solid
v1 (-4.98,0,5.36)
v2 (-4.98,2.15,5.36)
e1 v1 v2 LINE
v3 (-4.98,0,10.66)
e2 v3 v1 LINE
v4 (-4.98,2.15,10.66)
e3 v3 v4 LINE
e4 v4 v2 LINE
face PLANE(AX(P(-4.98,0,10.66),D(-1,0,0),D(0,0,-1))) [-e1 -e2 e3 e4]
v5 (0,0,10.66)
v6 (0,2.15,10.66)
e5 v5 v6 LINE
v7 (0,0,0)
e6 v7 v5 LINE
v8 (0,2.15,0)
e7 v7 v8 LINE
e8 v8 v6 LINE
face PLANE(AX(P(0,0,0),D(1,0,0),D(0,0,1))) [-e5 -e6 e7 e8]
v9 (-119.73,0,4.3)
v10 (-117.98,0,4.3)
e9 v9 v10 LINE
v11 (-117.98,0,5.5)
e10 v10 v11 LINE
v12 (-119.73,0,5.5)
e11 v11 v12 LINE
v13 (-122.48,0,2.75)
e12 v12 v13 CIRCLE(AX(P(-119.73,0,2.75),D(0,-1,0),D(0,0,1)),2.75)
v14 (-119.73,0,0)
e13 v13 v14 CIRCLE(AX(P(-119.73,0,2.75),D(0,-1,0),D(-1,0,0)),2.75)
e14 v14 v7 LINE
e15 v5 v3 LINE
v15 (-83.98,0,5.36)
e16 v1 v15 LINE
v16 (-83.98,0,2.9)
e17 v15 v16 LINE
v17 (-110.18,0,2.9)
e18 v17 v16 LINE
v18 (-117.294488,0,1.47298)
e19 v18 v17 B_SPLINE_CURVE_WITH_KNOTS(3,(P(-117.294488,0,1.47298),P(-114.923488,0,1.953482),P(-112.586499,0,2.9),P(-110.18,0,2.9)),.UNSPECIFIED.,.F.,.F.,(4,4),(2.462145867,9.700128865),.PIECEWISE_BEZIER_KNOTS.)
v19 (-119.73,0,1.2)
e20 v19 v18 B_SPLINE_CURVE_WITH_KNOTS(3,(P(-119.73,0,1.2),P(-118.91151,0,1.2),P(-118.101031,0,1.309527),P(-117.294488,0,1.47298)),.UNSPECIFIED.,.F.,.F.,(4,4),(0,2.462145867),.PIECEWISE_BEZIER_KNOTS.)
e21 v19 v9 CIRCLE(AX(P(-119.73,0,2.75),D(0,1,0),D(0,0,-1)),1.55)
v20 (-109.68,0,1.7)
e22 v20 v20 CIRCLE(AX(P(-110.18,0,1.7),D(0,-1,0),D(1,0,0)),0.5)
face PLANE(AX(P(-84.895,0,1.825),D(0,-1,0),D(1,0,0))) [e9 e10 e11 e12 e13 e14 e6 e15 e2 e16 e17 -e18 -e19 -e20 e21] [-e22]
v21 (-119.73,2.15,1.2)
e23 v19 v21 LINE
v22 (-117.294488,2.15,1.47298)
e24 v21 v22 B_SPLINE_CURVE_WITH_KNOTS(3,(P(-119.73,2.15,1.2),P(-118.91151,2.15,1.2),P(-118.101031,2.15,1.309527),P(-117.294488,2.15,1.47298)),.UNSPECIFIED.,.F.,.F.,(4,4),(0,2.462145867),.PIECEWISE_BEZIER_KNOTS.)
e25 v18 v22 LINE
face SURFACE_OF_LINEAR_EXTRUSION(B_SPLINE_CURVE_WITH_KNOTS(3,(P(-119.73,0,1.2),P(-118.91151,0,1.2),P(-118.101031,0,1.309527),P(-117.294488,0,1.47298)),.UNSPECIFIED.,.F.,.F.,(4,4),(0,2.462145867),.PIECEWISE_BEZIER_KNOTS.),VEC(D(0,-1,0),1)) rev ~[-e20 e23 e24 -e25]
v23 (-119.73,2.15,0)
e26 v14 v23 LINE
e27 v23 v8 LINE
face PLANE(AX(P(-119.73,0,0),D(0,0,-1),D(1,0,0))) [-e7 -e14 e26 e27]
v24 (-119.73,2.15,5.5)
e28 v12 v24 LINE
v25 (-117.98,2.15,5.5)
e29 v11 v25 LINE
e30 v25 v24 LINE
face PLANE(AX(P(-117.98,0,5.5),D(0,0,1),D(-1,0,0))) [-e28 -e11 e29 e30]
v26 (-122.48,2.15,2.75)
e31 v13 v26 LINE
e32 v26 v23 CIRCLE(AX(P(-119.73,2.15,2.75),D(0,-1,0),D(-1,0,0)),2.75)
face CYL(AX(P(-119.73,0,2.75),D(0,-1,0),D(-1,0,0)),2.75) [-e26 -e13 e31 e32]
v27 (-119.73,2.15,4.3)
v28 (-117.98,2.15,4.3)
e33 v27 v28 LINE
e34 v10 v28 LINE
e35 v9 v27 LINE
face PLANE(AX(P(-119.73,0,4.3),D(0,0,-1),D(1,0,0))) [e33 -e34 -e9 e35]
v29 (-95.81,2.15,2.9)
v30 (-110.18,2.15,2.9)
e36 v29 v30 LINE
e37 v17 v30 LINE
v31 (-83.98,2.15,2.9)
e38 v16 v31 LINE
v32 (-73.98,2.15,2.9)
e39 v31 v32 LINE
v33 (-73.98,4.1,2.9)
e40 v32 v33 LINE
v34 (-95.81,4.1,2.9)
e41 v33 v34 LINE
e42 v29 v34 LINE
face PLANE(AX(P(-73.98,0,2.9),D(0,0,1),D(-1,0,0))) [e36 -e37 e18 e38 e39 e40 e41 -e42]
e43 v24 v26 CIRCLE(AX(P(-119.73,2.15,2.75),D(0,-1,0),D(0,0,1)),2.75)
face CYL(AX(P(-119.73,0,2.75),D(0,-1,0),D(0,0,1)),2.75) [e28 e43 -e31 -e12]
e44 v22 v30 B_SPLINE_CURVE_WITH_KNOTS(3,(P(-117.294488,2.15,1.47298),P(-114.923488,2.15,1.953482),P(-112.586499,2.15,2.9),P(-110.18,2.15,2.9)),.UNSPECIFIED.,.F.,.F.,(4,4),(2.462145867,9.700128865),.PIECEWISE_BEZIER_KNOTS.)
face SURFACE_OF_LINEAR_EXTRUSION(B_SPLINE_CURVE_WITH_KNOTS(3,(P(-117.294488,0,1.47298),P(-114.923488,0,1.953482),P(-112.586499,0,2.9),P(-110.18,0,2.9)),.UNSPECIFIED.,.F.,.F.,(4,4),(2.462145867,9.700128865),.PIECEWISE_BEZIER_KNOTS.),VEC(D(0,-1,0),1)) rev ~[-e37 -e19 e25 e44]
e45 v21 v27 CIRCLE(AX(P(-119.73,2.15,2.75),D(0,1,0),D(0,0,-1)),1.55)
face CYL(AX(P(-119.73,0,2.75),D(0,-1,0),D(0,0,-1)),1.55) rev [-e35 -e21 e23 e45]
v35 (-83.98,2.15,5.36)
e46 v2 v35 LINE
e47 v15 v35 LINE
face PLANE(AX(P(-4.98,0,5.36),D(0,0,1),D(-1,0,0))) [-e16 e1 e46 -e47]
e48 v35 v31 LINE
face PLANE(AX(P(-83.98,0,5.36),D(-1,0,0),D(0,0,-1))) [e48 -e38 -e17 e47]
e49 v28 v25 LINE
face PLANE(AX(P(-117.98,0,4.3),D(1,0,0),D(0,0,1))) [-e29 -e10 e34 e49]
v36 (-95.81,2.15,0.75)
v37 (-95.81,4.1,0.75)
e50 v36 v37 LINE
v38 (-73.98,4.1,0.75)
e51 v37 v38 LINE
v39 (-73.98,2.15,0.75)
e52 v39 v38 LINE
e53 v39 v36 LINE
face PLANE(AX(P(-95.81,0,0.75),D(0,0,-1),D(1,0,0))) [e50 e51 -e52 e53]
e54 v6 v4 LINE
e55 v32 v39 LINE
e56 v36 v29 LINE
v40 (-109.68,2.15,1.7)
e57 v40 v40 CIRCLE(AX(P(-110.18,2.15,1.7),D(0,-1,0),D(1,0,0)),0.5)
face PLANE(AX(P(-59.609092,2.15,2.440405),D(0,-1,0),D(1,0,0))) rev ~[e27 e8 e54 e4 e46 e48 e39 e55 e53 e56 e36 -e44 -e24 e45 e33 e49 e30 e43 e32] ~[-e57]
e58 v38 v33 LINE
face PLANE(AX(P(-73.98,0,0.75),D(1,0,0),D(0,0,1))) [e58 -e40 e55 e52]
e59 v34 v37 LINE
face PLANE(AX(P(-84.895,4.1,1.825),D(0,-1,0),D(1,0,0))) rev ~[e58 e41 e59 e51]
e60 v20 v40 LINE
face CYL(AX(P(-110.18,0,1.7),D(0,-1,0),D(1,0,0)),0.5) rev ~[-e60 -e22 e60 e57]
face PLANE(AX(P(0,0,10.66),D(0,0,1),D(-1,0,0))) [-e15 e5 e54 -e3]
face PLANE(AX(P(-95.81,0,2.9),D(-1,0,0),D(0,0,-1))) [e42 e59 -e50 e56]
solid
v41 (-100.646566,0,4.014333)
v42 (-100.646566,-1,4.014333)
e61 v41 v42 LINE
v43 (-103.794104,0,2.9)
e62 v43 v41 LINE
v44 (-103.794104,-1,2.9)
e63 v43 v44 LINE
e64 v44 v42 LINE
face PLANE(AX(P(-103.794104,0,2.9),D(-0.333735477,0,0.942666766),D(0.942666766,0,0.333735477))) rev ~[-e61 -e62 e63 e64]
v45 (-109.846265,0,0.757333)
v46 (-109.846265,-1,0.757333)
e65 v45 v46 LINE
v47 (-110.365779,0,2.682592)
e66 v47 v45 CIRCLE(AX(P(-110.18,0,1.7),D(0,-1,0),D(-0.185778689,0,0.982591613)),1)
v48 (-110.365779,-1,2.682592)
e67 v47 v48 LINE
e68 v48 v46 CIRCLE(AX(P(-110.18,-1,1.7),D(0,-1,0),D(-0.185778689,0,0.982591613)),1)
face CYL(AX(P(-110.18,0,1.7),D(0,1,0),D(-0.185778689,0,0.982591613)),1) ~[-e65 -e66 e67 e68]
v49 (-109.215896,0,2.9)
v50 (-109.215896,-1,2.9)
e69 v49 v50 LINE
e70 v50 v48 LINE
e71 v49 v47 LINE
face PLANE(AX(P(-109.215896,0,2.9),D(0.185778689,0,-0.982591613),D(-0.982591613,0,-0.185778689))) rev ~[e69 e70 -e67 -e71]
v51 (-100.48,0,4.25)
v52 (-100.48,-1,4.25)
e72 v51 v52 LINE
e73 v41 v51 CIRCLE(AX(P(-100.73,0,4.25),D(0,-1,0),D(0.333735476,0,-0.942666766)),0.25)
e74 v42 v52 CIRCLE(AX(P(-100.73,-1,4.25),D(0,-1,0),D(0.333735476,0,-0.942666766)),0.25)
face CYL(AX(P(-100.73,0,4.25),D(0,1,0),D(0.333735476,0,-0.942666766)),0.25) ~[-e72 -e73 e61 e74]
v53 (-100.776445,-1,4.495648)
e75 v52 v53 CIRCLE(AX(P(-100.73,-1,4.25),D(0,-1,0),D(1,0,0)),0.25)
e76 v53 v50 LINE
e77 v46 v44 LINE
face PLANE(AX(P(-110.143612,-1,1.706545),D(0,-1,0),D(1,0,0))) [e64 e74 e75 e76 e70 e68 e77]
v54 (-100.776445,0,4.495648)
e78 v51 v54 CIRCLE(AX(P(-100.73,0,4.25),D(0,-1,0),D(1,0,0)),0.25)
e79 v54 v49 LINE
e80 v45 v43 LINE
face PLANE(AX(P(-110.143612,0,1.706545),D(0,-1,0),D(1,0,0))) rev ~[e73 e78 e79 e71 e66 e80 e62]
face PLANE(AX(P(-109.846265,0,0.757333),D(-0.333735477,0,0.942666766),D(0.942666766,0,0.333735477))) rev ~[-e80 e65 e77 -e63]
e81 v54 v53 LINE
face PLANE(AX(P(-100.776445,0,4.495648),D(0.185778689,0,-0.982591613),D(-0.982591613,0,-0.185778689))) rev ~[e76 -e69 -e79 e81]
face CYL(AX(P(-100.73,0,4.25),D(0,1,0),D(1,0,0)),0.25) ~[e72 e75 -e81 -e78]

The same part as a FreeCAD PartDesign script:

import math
import FreeCAD as App
import Part
import Sketcher
Q = App.Units.Quantity

doc = App.newDocument("Part")
body = doc.addObject("PartDesign::Body", "Body")

# Sketch on XZ plane
sketch1 = doc.addObject("Sketcher::SketchObject", "Sketch")
body.addObject(sketch1)
sketch1.AttachmentSupport = (doc.XZ_Plane, [""])
sketch1.MapMode = "FlatFace"
sketch1.addGeometry([
    Part.LineSegment(App.Vector(0, 10.66, 0), App.Vector(-4.98, 10.66, 0)),  # 0
    Part.LineSegment(App.Vector(-4.98, 10.66, 0), App.Vector(-4.98, 5.36, 0)),  # 1
    Part.LineSegment(App.Vector(-4.98, 5.36, 0), App.Vector(-83.98, 5.36, 0)),  # 2
    Part.LineSegment(App.Vector(-83.98, 5.36, 0), App.Vector(-83.98, 2.9, 0)),  # 3
    Part.LineSegment(App.Vector(-83.98, 2.9, 0), App.Vector(-73.98, 2.9, 0)),  # 4
    Part.LineSegment(App.Vector(-73.98, 2.9, 0), App.Vector(-73.98, 0.75, 0)),  # 5
    Part.LineSegment(App.Vector(-73.98, 0.75, 0), App.Vector(-95.81, 0.75, 0)),  # 6
    Part.LineSegment(App.Vector(-95.81, 0.75, 0), App.Vector(-95.81, 2.9, 0)),  # 7
    Part.LineSegment(App.Vector(-95.81, 2.9, 0), App.Vector(-110.18, 2.9, 0)),  # 8
    Part.BSplineCurve([App.Vector(-117.294488, 1.47298, 0), App.Vector(-114.923488, 1.953482, 0), App.Vector(-112.586499, 2.9, 0), App.Vector(-110.18, 2.9, 0)], [4, 4], [2.462145867, 9.700128865], False, 3, [1, 1, 1, 1], False),  # 9
    Part.BSplineCurve([App.Vector(-119.73, 1.2, 0), App.Vector(-118.91151, 1.2, 0), App.Vector(-118.101031, 1.309527, 0), App.Vector(-117.294488, 1.47298, 0)], [4, 4], [0, 2.462145867], False, 3, [1, 1, 1, 1], False),  # 10
    Part.ArcOfCircle(Part.Circle(App.Vector(-119.73, 2.75, 0), App.Vector(0, 0, 1), 1.55), math.radians(90), math.radians(270)),  # 11
    Part.LineSegment(App.Vector(-119.73, 4.3, 0), App.Vector(-117.98, 4.3, 0)),  # 12
    Part.LineSegment(App.Vector(-117.98, 4.3, 0), App.Vector(-117.98, 5.5, 0)),  # 13
    Part.LineSegment(App.Vector(-117.98, 5.5, 0), App.Vector(-119.73, 5.5, 0)),  # 14
    Part.ArcOfCircle(Part.Circle(App.Vector(-119.73, 2.75, 0), App.Vector(0, 0, 1), 2.75), math.radians(90), math.radians(180)),  # 15
    Part.ArcOfCircle(Part.Circle(App.Vector(-119.73, 2.75, 0), App.Vector(0, 0, 1), 2.75), math.radians(180), math.radians(270)),  # 16
    Part.LineSegment(App.Vector(-119.73, 0, 0), App.Vector(0, 0, 0)),  # 17
    Part.LineSegment(App.Vector(0, 0, 0), App.Vector(0, 10.66, 0)),  # 18
    Part.Circle(App.Vector(-110.18, 1.7, 0), App.Vector(0, 0, 1), 0.5),  # 19
], False)
sketch1.addConstraint([
    Sketcher.Constraint("Block", 9),
    Sketcher.Constraint("Block", 10),
    Sketcher.Constraint("Coincident", 0, 2, 1, 1),
    Sketcher.Constraint("Coincident", 1, 2, 2, 1),
    Sketcher.Constraint("Coincident", 2, 2, 3, 1),
    Sketcher.Constraint("Coincident", 3, 2, 4, 1),
    Sketcher.Constraint("Coincident", 4, 2, 5, 1),
    Sketcher.Constraint("Coincident", 5, 2, 6, 1),
    Sketcher.Constraint("Coincident", 6, 2, 7, 1),
    Sketcher.Constraint("Coincident", 7, 2, 8, 1),
    Sketcher.Constraint("Coincident", 8, 2, 9, 2),
    Sketcher.Constraint("Coincident", 10, 1, 11, 2),
    Sketcher.Constraint("Tangent", 11, 1, 12, 1),
    Sketcher.Constraint("Coincident", 12, 2, 13, 1),
    Sketcher.Constraint("Coincident", 13, 2, 14, 1),
    Sketcher.Constraint("Tangent", 14, 2, 15, 1),
    Sketcher.Constraint("Tangent", 15, 2, 16, 1),
    Sketcher.Constraint("Tangent", 16, 2, 17, 1),
    Sketcher.Constraint("Coincident", 17, 2, 18, 1),
    Sketcher.Constraint("Coincident", 18, 2, 0, 1),
    Sketcher.Constraint("Horizontal", 0),
    Sketcher.Constraint("Vertical", 1),
    Sketcher.Constraint("Horizontal", 2),
    Sketcher.Constraint("Vertical", 3),
    Sketcher.Constraint("Horizontal", 4),
    Sketcher.Constraint("Vertical", 5),
    Sketcher.Constraint("Horizontal", 6),
    Sketcher.Constraint("Vertical", 7),
    Sketcher.Constraint("Horizontal", 8),
    Sketcher.Constraint("Horizontal", 12),
    Sketcher.Constraint("Vertical", 13),
    Sketcher.Constraint("Horizontal", 14),
    Sketcher.Constraint("Horizontal", 17),
    Sketcher.Constraint("Vertical", 18),
    Sketcher.Constraint("Coincident", 17, 2, -1, 1),
    Sketcher.Constraint("Coincident", 15, 3, 11, 3),
    Sketcher.Constraint("Equal", 15, 16),
    Sketcher.Constraint("Horizontal", 4, 2, 7, 2),
    Sketcher.Constraint("Horizontal", 16, 3, 15, 2),
    Sketcher.Constraint("Vertical", 19, 3, 8, 2),
    Sketcher.Constraint("Diameter", 19, Q("1 mm")),
    Sketcher.Constraint("DistanceX", 2, 2, 2, 1, Q("79 mm")),
    Sketcher.Constraint("DistanceX", 4, 1, 4, 2, Q("10 mm")),
    Sketcher.Constraint("Radius", 11, Q("1.55 mm")),
    Sketcher.Constraint("DistanceY", 1, 2, 1, 1, Q("5.3 mm")),
    Sketcher.Constraint("DistanceY", 5, 2, 11, 3, Q("2 mm")),
    Sketcher.Constraint("DistanceX", 0, 2, 0, 1, Q("4.98 mm")),
    Sketcher.Constraint("DistanceX", 6, 2, 6, 1, Q("21.83 mm")),
    Sketcher.Constraint("DistanceX", 12, 1, 12, 2, Q("1.75 mm")),
    Sketcher.Constraint("DistanceX", 17, 1, 17, 2, Q("119.73 mm")),
    Sketcher.Constraint("DistanceY", 3, 2, 3, 1, Q("2.46 mm")),
    Sketcher.Constraint("DistanceY", -1, 1, 19, 3, Q("1.7 mm")),
])
pad1 = doc.addObject("PartDesign::Pad", "Pad")
body.addObject(pad1)
pad1.Profile = sketch1
pad1.Length = 2.15
pad1.Reversed = True

# Sketch on XZ plane
sketch2 = doc.addObject("Sketcher::SketchObject", "Sketch001")
body.addObject(sketch2)
sketch2.AttachmentSupport = (doc.XZ_Plane, [""])
sketch2.MapMode = "FlatFace"
sketch2.addGeometry([
    Part.LineSegment(App.Vector(-73.98, 2.9, 0), App.Vector(-95.81, 2.9, 0)),
    Part.LineSegment(App.Vector(-95.81, 2.9, 0), App.Vector(-95.81, 0.75, 0)),
    Part.LineSegment(App.Vector(-95.81, 0.75, 0), App.Vector(-73.98, 0.75, 0)),
    Part.LineSegment(App.Vector(-73.98, 0.75, 0), App.Vector(-73.98, 2.9, 0)),
], False)
sketch2.addConstraint([
    Sketcher.Constraint("Coincident", 0, 2, 1, 1),
    Sketcher.Constraint("Coincident", 1, 2, 2, 1),
    Sketcher.Constraint("Coincident", 2, 2, 3, 1),
    Sketcher.Constraint("Coincident", 3, 2, 0, 1),
    Sketcher.Constraint("Horizontal", 0),
    Sketcher.Constraint("Vertical", 1),
    Sketcher.Constraint("Horizontal", 2),
    Sketcher.Constraint("Vertical", 3),
    Sketcher.Constraint("DistanceX", 0, 2, 0, 1, Q("21.83 mm")),
    Sketcher.Constraint("DistanceY", 1, 2, 1, 1, Q("2.15 mm")),
    Sketcher.Constraint("DistanceY", -1, 1, 0, 2, Q("2.9 mm")),
    Sketcher.Constraint("DistanceX", 0, 2, -1, 1, Q("95.81 mm")),
])
pad2 = doc.addObject("PartDesign::Pad", "Pad001")
body.addObject(pad2)
pad2.Profile = sketch2
pad2.Length = 4.1
pad2.Reversed = True
body2 = doc.addObject("PartDesign::Body", "Body001")

# Sketch on XZ plane
sketch3 = doc.addObject("Sketcher::SketchObject", "Sketch002")
body2.addObject(sketch3)
sketch3.AttachmentSupport = (doc.getObject("XZ_Plane001"), [""])
sketch3.MapMode = "FlatFace"
sketch3.addGeometry([
    Part.ArcOfCircle(Part.Circle(App.Vector(-110.18, 1.7, 0), App.Vector(0, 0, 1), 1), math.radians(100.706535), math.radians(289.495661)),  # 0
    Part.LineSegment(App.Vector(-109.846265, 0.757333, 0), App.Vector(-103.794104, 2.9, 0)),  # 1
    Part.LineSegment(App.Vector(-103.794104, 2.9, 0), App.Vector(-100.646566, 4.014333, 0)),  # 2
    Part.ArcOfCircle(Part.Circle(App.Vector(-100.73, 4.25, 0), App.Vector(0, 0, 1), 0.25), math.radians(-70.504339), math.radians(0)),  # 3
    Part.ArcOfCircle(Part.Circle(App.Vector(-100.73, 4.25, 0), App.Vector(0, 0, 1), 0.25), math.radians(0), math.radians(100.706535)),  # 4
    Part.LineSegment(App.Vector(-100.776445, 4.495648, 0), App.Vector(-109.215896, 2.9, 0)),  # 5
    Part.LineSegment(App.Vector(-109.215896, 2.9, 0), App.Vector(-110.365779, 2.682592, 0)),  # 6
], False)
sketch3.addConstraint([
    Sketcher.Constraint("Tangent", 0, 2, 1, 1),
    Sketcher.Constraint("Coincident", 1, 2, 2, 1),
    Sketcher.Constraint("Tangent", 2, 2, 3, 1),
    Sketcher.Constraint("Tangent", 3, 2, 4, 1),
    Sketcher.Constraint("Tangent", 4, 2, 5, 1),
    Sketcher.Constraint("Coincident", 5, 2, 6, 1),
    Sketcher.Constraint("Tangent", 6, 2, 0, 1),
    Sketcher.Constraint("Equal", 3, 4),
    Sketcher.Constraint("Parallel", 1, 2),
    Sketcher.Constraint("Parallel", 5, 6),
    Sketcher.Constraint("Horizontal", 4, 3, 3, 2),
    Sketcher.Constraint("Horizontal", 1, 2, 5, 2),
    Sketcher.Constraint("Radius", 0, Q("1 mm")),
    Sketcher.Constraint("Radius", 3, Q("0.25 mm")),
    Sketcher.Constraint("DistanceY", -1, 1, 0, 3, Q("1.7 mm")),
    Sketcher.Constraint("DistanceY", -1, 1, 1, 2, Q("2.9 mm")),
    Sketcher.Constraint("DistanceX", 0, 3, -1, 1, Q("110.18 mm")),
    Sketcher.Constraint("DistanceX", 3, 3, -1, 1, Q("100.73 mm")),
    Sketcher.Constraint("DistanceY", -1, 1, 3, 3, Q("4.25 mm")),
])
pad3 = doc.addObject("PartDesign::Pad", "Pad002")
body2.addObject(pad3)
pad3.Profile = sketch3
pad3.Length = 1

doc.recompute()
